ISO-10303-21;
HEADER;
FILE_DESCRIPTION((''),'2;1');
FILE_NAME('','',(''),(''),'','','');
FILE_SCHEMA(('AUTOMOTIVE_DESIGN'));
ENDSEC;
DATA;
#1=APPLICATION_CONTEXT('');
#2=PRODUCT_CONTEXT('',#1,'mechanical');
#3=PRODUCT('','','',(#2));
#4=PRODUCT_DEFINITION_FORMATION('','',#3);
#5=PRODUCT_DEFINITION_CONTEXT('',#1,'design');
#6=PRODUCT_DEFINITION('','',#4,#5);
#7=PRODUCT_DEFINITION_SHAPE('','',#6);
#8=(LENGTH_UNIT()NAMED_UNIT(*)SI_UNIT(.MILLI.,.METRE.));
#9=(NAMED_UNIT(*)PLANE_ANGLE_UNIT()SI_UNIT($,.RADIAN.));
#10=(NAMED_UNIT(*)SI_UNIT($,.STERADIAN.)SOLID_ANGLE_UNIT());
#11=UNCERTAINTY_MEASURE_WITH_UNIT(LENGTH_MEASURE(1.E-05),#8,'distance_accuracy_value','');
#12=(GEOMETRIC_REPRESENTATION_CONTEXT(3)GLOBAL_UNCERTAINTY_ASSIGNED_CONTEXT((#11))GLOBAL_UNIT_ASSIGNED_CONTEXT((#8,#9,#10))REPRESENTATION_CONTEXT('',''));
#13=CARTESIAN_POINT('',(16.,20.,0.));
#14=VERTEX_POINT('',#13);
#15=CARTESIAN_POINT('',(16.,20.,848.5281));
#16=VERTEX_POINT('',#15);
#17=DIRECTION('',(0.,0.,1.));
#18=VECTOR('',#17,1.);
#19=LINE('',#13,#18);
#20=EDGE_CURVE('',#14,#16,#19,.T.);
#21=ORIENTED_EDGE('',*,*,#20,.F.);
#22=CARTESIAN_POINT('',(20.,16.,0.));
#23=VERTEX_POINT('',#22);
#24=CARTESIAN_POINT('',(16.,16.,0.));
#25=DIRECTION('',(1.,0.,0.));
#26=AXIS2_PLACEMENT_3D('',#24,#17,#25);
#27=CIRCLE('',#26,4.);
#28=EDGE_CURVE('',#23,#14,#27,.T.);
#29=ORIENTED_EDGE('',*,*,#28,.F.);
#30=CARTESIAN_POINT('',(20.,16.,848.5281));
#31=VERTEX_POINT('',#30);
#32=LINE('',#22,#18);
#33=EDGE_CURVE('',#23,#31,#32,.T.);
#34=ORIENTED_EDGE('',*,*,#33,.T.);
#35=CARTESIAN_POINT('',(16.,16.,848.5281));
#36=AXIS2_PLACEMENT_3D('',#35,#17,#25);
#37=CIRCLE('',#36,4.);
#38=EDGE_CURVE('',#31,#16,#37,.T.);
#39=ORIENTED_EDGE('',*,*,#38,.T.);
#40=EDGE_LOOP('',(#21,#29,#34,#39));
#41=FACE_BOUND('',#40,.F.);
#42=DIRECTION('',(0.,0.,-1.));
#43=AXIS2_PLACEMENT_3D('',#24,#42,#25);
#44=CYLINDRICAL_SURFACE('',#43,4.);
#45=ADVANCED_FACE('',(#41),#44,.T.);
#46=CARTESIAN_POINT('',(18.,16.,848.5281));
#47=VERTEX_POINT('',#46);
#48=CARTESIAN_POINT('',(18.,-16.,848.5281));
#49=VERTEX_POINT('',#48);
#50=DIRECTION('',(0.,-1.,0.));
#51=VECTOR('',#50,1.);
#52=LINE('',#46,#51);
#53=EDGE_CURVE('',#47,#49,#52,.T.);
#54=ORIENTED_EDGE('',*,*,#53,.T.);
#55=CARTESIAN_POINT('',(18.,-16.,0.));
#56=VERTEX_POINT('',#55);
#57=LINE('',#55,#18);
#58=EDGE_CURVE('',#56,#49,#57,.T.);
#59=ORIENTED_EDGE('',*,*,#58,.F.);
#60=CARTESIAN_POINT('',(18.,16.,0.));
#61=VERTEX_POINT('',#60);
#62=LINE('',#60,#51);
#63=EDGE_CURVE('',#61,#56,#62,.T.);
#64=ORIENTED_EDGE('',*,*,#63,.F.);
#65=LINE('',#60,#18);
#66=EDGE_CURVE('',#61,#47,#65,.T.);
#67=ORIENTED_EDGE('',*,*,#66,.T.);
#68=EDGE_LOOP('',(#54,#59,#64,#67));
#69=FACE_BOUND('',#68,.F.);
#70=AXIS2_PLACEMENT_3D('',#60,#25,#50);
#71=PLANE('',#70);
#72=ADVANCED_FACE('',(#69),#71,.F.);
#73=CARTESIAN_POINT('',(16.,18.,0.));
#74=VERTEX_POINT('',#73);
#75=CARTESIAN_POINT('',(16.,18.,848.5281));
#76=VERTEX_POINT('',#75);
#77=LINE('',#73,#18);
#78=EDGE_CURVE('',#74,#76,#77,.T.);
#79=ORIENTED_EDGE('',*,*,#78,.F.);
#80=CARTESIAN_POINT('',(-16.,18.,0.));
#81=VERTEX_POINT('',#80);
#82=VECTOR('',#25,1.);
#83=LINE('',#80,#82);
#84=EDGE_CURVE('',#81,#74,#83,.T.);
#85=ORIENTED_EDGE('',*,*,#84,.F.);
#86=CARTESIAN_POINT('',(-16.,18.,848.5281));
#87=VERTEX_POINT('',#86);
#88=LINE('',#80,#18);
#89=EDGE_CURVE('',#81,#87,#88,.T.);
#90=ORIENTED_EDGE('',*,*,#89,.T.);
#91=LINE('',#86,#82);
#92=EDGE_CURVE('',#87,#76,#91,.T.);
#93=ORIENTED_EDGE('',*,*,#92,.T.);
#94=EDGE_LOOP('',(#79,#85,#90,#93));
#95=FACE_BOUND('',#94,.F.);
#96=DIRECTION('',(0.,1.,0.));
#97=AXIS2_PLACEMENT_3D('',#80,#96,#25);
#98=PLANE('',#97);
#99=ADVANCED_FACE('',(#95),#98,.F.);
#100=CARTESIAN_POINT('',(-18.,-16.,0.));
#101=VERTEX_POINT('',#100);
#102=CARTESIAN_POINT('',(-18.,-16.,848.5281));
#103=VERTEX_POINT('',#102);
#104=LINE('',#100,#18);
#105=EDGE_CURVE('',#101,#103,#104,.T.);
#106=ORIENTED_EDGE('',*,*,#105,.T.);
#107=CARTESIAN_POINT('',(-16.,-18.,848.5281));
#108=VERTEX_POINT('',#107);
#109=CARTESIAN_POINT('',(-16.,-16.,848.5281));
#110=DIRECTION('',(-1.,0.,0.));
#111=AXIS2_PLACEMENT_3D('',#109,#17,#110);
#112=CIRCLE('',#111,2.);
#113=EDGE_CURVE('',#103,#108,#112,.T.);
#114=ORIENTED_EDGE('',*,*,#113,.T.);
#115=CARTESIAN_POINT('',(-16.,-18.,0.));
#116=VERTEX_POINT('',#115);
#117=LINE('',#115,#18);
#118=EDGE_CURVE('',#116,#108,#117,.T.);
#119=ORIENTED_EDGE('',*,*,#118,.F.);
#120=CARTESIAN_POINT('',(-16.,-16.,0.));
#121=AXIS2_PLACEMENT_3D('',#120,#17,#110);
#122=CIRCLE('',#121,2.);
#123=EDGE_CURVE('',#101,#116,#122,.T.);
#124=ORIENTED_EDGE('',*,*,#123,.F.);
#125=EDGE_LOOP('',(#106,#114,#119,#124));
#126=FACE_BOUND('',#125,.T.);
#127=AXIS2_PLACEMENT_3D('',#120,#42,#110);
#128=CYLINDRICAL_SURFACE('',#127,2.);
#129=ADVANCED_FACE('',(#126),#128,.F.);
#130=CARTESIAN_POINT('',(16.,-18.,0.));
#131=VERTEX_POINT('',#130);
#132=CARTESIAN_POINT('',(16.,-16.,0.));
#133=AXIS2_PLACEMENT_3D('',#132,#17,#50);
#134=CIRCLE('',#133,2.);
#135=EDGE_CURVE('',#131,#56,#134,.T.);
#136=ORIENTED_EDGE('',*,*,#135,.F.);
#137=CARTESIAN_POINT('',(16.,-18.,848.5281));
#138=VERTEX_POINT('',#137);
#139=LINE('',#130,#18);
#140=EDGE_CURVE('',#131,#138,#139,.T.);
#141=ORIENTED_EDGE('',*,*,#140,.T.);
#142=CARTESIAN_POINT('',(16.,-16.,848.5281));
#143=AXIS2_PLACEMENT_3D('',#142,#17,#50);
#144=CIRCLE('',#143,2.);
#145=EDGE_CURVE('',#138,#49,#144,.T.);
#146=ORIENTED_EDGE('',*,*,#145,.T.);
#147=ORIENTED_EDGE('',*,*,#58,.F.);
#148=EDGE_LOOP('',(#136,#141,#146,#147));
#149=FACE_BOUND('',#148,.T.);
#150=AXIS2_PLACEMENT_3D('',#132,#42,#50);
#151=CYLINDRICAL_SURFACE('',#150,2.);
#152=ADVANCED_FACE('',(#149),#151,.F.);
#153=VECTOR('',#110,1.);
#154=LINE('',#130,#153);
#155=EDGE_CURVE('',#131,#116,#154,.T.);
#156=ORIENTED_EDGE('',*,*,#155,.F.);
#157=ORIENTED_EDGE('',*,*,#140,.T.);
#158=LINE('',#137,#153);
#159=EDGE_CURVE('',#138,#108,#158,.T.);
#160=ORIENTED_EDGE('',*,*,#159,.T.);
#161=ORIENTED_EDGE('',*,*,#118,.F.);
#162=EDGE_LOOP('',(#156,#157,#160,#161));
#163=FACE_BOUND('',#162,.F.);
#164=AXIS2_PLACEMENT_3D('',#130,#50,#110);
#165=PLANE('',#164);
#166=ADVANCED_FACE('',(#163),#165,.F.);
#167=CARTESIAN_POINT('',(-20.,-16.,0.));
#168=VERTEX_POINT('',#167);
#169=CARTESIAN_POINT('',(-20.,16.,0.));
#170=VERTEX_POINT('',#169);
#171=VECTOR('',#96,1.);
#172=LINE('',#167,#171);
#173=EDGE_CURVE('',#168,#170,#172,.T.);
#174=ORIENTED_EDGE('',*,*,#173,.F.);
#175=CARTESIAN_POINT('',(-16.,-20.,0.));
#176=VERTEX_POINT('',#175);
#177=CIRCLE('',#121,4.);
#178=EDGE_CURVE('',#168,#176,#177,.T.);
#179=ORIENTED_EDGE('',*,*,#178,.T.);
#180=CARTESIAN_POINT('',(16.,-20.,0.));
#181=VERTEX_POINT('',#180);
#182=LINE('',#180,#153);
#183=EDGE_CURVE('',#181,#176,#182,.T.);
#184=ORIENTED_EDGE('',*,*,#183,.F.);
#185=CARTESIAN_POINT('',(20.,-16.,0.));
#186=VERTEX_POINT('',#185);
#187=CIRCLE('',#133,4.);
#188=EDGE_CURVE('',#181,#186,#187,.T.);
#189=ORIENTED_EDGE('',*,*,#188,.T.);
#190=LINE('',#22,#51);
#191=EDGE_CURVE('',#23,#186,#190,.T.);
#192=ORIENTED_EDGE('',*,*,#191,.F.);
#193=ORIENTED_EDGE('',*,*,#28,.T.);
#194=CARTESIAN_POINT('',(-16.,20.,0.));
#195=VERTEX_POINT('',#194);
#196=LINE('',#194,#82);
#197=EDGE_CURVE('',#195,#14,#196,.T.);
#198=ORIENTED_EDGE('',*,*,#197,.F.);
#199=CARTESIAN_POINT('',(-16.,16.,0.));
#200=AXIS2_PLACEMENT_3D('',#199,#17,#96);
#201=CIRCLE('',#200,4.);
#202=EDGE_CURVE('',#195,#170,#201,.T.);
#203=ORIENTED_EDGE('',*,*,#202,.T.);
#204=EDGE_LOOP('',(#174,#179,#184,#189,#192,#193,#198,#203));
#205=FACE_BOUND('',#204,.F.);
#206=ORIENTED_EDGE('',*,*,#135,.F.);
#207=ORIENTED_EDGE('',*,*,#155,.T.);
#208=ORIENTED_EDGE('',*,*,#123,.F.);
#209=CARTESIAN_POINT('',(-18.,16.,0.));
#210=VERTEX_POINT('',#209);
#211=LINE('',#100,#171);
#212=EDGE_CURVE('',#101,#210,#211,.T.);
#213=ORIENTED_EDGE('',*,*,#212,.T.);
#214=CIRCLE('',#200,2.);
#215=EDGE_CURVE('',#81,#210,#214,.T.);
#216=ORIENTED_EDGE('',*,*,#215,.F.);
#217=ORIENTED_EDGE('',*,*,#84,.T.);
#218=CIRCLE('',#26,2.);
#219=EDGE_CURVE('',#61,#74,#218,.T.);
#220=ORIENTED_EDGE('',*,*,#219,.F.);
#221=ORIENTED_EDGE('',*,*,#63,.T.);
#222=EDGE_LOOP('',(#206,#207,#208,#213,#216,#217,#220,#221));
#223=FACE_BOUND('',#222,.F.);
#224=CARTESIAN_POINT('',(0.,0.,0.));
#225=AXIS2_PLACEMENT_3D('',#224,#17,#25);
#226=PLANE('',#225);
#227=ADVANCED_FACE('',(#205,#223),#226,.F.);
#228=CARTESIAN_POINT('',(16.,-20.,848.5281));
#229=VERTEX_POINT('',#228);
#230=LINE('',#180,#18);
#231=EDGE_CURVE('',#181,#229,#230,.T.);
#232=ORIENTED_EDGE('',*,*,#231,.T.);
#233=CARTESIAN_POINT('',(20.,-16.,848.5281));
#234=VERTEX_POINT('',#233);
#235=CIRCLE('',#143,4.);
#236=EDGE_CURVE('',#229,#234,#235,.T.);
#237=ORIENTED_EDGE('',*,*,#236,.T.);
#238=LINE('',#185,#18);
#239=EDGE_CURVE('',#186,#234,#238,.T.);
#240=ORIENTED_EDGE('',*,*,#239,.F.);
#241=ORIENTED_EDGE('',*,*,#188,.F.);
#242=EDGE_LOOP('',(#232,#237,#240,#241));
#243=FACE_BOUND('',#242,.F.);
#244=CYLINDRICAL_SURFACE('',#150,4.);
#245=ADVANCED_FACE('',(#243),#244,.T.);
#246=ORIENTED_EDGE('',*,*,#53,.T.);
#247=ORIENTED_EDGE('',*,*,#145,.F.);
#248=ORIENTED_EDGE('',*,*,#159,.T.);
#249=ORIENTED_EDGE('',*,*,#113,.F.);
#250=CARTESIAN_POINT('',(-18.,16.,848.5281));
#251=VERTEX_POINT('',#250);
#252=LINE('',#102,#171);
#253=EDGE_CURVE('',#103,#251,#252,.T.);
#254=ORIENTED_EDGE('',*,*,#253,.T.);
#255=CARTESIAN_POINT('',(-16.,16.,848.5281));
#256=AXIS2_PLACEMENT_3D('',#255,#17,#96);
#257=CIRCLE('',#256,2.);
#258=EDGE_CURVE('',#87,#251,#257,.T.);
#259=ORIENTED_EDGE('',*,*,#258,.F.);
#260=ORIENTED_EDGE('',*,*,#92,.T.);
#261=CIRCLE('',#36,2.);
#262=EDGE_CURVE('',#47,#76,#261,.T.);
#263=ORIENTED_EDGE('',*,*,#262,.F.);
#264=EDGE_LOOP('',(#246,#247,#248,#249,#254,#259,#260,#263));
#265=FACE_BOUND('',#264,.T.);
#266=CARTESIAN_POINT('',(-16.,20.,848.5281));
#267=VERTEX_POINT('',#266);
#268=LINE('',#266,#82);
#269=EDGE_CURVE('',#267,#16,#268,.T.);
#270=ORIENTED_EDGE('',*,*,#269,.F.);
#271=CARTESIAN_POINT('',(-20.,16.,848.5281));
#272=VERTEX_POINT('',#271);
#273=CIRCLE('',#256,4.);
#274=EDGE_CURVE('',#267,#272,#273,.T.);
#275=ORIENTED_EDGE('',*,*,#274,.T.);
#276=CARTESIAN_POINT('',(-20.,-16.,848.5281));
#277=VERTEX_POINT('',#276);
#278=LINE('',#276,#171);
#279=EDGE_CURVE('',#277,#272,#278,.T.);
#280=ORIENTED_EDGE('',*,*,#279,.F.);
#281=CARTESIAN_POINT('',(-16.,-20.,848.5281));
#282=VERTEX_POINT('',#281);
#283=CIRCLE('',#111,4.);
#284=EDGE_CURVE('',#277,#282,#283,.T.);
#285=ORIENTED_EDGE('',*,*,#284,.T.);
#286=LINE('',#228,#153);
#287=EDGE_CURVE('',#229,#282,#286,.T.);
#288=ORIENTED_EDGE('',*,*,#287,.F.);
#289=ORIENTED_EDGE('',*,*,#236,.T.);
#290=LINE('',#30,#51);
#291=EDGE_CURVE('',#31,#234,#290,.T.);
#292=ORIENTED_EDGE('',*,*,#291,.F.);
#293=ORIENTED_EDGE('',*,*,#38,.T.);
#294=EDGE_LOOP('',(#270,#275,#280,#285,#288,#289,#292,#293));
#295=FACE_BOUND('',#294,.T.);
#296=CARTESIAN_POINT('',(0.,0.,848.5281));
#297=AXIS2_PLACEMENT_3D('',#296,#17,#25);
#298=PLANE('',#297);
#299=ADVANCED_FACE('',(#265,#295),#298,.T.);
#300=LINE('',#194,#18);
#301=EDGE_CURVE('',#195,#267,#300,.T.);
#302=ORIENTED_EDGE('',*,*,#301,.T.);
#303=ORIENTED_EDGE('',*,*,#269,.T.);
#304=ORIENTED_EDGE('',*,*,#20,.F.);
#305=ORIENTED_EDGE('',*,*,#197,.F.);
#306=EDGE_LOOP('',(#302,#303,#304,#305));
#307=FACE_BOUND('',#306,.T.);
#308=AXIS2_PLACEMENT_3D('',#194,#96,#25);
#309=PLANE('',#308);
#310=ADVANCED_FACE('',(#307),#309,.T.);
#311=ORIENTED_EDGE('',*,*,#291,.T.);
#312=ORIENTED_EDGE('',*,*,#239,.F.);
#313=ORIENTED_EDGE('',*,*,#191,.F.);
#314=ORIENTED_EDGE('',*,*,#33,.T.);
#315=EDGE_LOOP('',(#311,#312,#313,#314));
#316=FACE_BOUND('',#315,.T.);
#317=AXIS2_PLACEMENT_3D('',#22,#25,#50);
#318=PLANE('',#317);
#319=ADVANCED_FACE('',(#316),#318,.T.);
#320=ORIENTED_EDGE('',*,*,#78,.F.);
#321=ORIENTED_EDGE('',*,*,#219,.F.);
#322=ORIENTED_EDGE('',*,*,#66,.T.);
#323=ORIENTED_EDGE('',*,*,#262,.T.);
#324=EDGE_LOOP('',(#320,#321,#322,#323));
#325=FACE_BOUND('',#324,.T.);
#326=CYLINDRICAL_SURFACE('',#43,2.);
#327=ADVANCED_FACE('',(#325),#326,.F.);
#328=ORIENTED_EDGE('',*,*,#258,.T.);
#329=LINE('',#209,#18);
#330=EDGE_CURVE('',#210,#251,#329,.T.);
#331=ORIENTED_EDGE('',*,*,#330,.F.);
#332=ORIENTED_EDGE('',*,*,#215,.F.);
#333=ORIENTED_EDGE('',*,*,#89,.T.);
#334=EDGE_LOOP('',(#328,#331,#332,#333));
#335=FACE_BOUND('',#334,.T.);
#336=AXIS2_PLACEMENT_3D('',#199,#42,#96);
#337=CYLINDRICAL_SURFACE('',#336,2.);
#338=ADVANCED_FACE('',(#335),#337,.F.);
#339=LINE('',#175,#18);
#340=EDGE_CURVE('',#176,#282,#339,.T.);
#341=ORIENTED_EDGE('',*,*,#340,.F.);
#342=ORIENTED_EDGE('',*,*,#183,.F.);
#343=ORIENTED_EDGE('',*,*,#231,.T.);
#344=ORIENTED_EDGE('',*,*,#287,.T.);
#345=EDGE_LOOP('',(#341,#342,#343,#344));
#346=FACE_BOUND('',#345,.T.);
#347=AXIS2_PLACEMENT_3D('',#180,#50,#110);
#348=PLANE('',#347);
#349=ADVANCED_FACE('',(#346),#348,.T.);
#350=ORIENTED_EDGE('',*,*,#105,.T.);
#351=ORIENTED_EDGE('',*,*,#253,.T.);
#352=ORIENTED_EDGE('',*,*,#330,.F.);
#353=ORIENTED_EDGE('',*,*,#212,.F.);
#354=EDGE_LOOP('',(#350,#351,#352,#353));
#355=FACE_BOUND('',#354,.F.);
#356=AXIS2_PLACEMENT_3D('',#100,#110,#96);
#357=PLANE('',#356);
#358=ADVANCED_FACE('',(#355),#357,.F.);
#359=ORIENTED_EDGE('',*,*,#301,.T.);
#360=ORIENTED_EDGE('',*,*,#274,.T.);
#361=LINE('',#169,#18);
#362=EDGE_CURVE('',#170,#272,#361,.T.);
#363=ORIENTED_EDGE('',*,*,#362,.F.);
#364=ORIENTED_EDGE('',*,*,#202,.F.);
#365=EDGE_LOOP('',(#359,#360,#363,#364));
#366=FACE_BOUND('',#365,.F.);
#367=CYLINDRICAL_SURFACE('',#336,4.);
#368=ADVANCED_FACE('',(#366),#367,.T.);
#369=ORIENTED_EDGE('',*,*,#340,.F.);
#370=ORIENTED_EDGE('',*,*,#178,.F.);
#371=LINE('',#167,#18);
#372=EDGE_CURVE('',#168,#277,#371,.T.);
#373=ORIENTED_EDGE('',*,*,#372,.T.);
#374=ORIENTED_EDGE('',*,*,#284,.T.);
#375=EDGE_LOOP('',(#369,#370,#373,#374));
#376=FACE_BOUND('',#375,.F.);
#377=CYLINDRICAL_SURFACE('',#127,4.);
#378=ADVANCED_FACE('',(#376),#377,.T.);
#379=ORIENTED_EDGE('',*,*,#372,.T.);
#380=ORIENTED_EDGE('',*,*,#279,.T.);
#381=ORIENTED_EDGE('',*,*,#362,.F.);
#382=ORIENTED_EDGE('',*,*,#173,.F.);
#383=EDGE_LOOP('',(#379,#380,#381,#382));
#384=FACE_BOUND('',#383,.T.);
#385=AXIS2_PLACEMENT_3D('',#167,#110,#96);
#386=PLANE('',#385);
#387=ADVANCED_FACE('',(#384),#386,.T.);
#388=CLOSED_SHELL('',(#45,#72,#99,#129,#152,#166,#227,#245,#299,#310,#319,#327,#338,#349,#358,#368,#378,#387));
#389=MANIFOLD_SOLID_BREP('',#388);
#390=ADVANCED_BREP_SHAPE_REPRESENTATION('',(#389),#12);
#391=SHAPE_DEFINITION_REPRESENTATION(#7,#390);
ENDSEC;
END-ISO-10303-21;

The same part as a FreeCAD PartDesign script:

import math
import FreeCAD as App
import Part
import Sketcher

V = App.Vector
Q = App.Units.Quantity

doc = App.newDocument("Part")
body = doc.addObject("PartDesign::Body", "Body")

# Sketch on XY plane
sketch1 = body.newObject("Sketcher::SketchObject", "Sketch")
sketch1.AttachmentSupport = (doc.getObject("XY_Plane"), [""])
sketch1.MapMode = "FlatFace"
sketch1.addGeometry(Part.LineSegment(V(-20, 16, 0), V(-20, -16, 0)), False)
sketch1.addGeometry(Part.ArcOfCircle(Part.Circle(V(-16, -16, 0), V(0, 0, 1), 4), math.radians(180), math.radians(270)), False)
sketch1.addGeometry(Part.LineSegment(V(-16, -20, 0), V(16, -20, 0)), False)
sketch1.addGeometry(Part.ArcOfCircle(Part.Circle(V(16, -16, 0), V(0, 0, 1), 4), math.radians(-90), math.radians(0)), False)
sketch1.addGeometry(Part.LineSegment(V(20, -16, 0), V(20, 16, 0)), False)
sketch1.addGeometry(Part.ArcOfCircle(Part.Circle(V(16, 16, 0), V(0, 0, 1), 4), math.radians(0), math.radians(90)), False)
sketch1.addGeometry(Part.LineSegment(V(16, 20, 0), V(-16, 20, 0)), False)
sketch1.addGeometry(Part.ArcOfCircle(Part.Circle(V(-16, 16, 0), V(0, 0, 1), 4), math.radians(90), math.radians(180)), False)
sketch1.addGeometry(Part.ArcOfCircle(Part.Circle(V(-16, 16, 0), V(0, 0, 1), 2), math.radians(90), math.radians(180)), False)
sketch1.addGeometry(Part.LineSegment(V(-16, 18, 0), V(16, 18, 0)), False)
sketch1.addGeometry(Part.ArcOfCircle(Part.Circle(V(16, 16, 0), V(0, 0, 1), 2), math.radians(0), math.radians(90)), False)
sketch1.addGeometry(Part.LineSegment(V(18, 16, 0), V(18, -16, 0)), False)
sketch1.addGeometry(Part.ArcOfCircle(Part.Circle(V(16, -16, 0), V(0, 0, 1), 2), math.radians(-90), math.radians(0)), False)
sketch1.addGeometry(Part.LineSegment(V(16, -18, 0), V(-16, -18, 0)), False)
sketch1.addGeometry(Part.ArcOfCircle(Part.Circle(V(-16, -16, 0), V(0, 0, 1), 2), math.radians(180), math.radians(270)), False)
sketch1.addGeometry(Part.LineSegment(V(-18, -16, 0), V(-18, 16, 0)), False)
sketch1.addConstraint(Sketcher.Constraint("Tangent", 0, 2, 1, 1))
sketch1.addConstraint(Sketcher.Constraint("Tangent", 1, 2, 2, 1))
sketch1.addConstraint(Sketcher.Constraint("Tangent", 2, 2, 3, 1))
sketch1.addConstraint(Sketcher.Constraint("Tangent", 3, 2, 4, 1))
sketch1.addConstraint(Sketcher.Constraint("Tangent", 4, 2, 5, 1))
sketch1.addConstraint(Sketcher.Constraint("Tangent", 5, 2, 6, 1))
sketch1.addConstraint(Sketcher.Constraint("Tangent", 6, 2, 7, 1))
sketch1.addConstraint(Sketcher.Constraint("Tangent", 7, 2, 0, 1))
sketch1.addConstraint(Sketcher.Constraint("Tangent", 8, 1, 9, 1))
sketch1.addConstraint(Sketcher.Constraint("Tangent", 9, 2, 10, 2))
sketch1.addConstraint(Sketcher.Constraint("Tangent", 10, 1, 11, 1))
sketch1.addConstraint(Sketcher.Constraint("Tangent", 11, 2, 12, 2))
sketch1.addConstraint(Sketcher.Constraint("Tangent", 12, 1, 13, 1))
sketch1.addConstraint(Sketcher.Constraint("Tangent", 13, 2, 14, 2))
sketch1.addConstraint(Sketcher.Constraint("Tangent", 14, 1, 15, 1))
sketch1.addConstraint(Sketcher.Constraint("Tangent", 15, 2, 8, 2))
sketch1.addConstraint(Sketcher.Constraint("Vertical", 0))
sketch1.addConstraint(Sketcher.Constraint("Horizontal", 2))
sketch1.addConstraint(Sketcher.Constraint("Vertical", 4))
sketch1.addConstraint(Sketcher.Constraint("Horizontal", 6))
sketch1.addConstraint(Sketcher.Constraint("Horizontal", 9))
sketch1.addConstraint(Sketcher.Constraint("Vertical", 11))
sketch1.addConstraint(Sketcher.Constraint("Horizontal", 13))
sketch1.addConstraint(Sketcher.Constraint("Vertical", 15))
sketch1.addConstraint(Sketcher.Constraint("Coincident", 8, 3, 7, 3))
sketch1.addConstraint(Sketcher.Constraint("Coincident", 10, 3, 5, 3))
sketch1.addConstraint(Sketcher.Constraint("Coincident", 12, 3, 3, 3))
sketch1.addConstraint(Sketcher.Constraint("Equal", 1, 3))
sketch1.addConstraint(Sketcher.Constraint("Equal", 3, 5))
sketch1.addConstraint(Sketcher.Constraint("Equal", 5, 7))
sketch1.addConstraint(Sketcher.Constraint("Equal", 12, 14))
sketch1.addConstraint(Sketcher.Constraint("Symmetric", 1, 3, 5, 3, -1, 1))
sketch1.addConstraint(Sketcher.Constraint("Equal", 13, 0))
sketch1.addConstraint(Sketcher.Constraint("Radius", 1, Q("4 mm")))
sketch1.addConstraint(Sketcher.Constraint("Radius", 8, Q("2 mm")))
sketch1.addConstraint(Sketcher.Constraint("DistanceX", 0, 2, -1, 1, Q("20 mm")))
pad1 = body.newObject("PartDesign::Pad", "Pad")
pad1.Profile = sketch1
pad1.Length = 848.5281

doc.recompute()
